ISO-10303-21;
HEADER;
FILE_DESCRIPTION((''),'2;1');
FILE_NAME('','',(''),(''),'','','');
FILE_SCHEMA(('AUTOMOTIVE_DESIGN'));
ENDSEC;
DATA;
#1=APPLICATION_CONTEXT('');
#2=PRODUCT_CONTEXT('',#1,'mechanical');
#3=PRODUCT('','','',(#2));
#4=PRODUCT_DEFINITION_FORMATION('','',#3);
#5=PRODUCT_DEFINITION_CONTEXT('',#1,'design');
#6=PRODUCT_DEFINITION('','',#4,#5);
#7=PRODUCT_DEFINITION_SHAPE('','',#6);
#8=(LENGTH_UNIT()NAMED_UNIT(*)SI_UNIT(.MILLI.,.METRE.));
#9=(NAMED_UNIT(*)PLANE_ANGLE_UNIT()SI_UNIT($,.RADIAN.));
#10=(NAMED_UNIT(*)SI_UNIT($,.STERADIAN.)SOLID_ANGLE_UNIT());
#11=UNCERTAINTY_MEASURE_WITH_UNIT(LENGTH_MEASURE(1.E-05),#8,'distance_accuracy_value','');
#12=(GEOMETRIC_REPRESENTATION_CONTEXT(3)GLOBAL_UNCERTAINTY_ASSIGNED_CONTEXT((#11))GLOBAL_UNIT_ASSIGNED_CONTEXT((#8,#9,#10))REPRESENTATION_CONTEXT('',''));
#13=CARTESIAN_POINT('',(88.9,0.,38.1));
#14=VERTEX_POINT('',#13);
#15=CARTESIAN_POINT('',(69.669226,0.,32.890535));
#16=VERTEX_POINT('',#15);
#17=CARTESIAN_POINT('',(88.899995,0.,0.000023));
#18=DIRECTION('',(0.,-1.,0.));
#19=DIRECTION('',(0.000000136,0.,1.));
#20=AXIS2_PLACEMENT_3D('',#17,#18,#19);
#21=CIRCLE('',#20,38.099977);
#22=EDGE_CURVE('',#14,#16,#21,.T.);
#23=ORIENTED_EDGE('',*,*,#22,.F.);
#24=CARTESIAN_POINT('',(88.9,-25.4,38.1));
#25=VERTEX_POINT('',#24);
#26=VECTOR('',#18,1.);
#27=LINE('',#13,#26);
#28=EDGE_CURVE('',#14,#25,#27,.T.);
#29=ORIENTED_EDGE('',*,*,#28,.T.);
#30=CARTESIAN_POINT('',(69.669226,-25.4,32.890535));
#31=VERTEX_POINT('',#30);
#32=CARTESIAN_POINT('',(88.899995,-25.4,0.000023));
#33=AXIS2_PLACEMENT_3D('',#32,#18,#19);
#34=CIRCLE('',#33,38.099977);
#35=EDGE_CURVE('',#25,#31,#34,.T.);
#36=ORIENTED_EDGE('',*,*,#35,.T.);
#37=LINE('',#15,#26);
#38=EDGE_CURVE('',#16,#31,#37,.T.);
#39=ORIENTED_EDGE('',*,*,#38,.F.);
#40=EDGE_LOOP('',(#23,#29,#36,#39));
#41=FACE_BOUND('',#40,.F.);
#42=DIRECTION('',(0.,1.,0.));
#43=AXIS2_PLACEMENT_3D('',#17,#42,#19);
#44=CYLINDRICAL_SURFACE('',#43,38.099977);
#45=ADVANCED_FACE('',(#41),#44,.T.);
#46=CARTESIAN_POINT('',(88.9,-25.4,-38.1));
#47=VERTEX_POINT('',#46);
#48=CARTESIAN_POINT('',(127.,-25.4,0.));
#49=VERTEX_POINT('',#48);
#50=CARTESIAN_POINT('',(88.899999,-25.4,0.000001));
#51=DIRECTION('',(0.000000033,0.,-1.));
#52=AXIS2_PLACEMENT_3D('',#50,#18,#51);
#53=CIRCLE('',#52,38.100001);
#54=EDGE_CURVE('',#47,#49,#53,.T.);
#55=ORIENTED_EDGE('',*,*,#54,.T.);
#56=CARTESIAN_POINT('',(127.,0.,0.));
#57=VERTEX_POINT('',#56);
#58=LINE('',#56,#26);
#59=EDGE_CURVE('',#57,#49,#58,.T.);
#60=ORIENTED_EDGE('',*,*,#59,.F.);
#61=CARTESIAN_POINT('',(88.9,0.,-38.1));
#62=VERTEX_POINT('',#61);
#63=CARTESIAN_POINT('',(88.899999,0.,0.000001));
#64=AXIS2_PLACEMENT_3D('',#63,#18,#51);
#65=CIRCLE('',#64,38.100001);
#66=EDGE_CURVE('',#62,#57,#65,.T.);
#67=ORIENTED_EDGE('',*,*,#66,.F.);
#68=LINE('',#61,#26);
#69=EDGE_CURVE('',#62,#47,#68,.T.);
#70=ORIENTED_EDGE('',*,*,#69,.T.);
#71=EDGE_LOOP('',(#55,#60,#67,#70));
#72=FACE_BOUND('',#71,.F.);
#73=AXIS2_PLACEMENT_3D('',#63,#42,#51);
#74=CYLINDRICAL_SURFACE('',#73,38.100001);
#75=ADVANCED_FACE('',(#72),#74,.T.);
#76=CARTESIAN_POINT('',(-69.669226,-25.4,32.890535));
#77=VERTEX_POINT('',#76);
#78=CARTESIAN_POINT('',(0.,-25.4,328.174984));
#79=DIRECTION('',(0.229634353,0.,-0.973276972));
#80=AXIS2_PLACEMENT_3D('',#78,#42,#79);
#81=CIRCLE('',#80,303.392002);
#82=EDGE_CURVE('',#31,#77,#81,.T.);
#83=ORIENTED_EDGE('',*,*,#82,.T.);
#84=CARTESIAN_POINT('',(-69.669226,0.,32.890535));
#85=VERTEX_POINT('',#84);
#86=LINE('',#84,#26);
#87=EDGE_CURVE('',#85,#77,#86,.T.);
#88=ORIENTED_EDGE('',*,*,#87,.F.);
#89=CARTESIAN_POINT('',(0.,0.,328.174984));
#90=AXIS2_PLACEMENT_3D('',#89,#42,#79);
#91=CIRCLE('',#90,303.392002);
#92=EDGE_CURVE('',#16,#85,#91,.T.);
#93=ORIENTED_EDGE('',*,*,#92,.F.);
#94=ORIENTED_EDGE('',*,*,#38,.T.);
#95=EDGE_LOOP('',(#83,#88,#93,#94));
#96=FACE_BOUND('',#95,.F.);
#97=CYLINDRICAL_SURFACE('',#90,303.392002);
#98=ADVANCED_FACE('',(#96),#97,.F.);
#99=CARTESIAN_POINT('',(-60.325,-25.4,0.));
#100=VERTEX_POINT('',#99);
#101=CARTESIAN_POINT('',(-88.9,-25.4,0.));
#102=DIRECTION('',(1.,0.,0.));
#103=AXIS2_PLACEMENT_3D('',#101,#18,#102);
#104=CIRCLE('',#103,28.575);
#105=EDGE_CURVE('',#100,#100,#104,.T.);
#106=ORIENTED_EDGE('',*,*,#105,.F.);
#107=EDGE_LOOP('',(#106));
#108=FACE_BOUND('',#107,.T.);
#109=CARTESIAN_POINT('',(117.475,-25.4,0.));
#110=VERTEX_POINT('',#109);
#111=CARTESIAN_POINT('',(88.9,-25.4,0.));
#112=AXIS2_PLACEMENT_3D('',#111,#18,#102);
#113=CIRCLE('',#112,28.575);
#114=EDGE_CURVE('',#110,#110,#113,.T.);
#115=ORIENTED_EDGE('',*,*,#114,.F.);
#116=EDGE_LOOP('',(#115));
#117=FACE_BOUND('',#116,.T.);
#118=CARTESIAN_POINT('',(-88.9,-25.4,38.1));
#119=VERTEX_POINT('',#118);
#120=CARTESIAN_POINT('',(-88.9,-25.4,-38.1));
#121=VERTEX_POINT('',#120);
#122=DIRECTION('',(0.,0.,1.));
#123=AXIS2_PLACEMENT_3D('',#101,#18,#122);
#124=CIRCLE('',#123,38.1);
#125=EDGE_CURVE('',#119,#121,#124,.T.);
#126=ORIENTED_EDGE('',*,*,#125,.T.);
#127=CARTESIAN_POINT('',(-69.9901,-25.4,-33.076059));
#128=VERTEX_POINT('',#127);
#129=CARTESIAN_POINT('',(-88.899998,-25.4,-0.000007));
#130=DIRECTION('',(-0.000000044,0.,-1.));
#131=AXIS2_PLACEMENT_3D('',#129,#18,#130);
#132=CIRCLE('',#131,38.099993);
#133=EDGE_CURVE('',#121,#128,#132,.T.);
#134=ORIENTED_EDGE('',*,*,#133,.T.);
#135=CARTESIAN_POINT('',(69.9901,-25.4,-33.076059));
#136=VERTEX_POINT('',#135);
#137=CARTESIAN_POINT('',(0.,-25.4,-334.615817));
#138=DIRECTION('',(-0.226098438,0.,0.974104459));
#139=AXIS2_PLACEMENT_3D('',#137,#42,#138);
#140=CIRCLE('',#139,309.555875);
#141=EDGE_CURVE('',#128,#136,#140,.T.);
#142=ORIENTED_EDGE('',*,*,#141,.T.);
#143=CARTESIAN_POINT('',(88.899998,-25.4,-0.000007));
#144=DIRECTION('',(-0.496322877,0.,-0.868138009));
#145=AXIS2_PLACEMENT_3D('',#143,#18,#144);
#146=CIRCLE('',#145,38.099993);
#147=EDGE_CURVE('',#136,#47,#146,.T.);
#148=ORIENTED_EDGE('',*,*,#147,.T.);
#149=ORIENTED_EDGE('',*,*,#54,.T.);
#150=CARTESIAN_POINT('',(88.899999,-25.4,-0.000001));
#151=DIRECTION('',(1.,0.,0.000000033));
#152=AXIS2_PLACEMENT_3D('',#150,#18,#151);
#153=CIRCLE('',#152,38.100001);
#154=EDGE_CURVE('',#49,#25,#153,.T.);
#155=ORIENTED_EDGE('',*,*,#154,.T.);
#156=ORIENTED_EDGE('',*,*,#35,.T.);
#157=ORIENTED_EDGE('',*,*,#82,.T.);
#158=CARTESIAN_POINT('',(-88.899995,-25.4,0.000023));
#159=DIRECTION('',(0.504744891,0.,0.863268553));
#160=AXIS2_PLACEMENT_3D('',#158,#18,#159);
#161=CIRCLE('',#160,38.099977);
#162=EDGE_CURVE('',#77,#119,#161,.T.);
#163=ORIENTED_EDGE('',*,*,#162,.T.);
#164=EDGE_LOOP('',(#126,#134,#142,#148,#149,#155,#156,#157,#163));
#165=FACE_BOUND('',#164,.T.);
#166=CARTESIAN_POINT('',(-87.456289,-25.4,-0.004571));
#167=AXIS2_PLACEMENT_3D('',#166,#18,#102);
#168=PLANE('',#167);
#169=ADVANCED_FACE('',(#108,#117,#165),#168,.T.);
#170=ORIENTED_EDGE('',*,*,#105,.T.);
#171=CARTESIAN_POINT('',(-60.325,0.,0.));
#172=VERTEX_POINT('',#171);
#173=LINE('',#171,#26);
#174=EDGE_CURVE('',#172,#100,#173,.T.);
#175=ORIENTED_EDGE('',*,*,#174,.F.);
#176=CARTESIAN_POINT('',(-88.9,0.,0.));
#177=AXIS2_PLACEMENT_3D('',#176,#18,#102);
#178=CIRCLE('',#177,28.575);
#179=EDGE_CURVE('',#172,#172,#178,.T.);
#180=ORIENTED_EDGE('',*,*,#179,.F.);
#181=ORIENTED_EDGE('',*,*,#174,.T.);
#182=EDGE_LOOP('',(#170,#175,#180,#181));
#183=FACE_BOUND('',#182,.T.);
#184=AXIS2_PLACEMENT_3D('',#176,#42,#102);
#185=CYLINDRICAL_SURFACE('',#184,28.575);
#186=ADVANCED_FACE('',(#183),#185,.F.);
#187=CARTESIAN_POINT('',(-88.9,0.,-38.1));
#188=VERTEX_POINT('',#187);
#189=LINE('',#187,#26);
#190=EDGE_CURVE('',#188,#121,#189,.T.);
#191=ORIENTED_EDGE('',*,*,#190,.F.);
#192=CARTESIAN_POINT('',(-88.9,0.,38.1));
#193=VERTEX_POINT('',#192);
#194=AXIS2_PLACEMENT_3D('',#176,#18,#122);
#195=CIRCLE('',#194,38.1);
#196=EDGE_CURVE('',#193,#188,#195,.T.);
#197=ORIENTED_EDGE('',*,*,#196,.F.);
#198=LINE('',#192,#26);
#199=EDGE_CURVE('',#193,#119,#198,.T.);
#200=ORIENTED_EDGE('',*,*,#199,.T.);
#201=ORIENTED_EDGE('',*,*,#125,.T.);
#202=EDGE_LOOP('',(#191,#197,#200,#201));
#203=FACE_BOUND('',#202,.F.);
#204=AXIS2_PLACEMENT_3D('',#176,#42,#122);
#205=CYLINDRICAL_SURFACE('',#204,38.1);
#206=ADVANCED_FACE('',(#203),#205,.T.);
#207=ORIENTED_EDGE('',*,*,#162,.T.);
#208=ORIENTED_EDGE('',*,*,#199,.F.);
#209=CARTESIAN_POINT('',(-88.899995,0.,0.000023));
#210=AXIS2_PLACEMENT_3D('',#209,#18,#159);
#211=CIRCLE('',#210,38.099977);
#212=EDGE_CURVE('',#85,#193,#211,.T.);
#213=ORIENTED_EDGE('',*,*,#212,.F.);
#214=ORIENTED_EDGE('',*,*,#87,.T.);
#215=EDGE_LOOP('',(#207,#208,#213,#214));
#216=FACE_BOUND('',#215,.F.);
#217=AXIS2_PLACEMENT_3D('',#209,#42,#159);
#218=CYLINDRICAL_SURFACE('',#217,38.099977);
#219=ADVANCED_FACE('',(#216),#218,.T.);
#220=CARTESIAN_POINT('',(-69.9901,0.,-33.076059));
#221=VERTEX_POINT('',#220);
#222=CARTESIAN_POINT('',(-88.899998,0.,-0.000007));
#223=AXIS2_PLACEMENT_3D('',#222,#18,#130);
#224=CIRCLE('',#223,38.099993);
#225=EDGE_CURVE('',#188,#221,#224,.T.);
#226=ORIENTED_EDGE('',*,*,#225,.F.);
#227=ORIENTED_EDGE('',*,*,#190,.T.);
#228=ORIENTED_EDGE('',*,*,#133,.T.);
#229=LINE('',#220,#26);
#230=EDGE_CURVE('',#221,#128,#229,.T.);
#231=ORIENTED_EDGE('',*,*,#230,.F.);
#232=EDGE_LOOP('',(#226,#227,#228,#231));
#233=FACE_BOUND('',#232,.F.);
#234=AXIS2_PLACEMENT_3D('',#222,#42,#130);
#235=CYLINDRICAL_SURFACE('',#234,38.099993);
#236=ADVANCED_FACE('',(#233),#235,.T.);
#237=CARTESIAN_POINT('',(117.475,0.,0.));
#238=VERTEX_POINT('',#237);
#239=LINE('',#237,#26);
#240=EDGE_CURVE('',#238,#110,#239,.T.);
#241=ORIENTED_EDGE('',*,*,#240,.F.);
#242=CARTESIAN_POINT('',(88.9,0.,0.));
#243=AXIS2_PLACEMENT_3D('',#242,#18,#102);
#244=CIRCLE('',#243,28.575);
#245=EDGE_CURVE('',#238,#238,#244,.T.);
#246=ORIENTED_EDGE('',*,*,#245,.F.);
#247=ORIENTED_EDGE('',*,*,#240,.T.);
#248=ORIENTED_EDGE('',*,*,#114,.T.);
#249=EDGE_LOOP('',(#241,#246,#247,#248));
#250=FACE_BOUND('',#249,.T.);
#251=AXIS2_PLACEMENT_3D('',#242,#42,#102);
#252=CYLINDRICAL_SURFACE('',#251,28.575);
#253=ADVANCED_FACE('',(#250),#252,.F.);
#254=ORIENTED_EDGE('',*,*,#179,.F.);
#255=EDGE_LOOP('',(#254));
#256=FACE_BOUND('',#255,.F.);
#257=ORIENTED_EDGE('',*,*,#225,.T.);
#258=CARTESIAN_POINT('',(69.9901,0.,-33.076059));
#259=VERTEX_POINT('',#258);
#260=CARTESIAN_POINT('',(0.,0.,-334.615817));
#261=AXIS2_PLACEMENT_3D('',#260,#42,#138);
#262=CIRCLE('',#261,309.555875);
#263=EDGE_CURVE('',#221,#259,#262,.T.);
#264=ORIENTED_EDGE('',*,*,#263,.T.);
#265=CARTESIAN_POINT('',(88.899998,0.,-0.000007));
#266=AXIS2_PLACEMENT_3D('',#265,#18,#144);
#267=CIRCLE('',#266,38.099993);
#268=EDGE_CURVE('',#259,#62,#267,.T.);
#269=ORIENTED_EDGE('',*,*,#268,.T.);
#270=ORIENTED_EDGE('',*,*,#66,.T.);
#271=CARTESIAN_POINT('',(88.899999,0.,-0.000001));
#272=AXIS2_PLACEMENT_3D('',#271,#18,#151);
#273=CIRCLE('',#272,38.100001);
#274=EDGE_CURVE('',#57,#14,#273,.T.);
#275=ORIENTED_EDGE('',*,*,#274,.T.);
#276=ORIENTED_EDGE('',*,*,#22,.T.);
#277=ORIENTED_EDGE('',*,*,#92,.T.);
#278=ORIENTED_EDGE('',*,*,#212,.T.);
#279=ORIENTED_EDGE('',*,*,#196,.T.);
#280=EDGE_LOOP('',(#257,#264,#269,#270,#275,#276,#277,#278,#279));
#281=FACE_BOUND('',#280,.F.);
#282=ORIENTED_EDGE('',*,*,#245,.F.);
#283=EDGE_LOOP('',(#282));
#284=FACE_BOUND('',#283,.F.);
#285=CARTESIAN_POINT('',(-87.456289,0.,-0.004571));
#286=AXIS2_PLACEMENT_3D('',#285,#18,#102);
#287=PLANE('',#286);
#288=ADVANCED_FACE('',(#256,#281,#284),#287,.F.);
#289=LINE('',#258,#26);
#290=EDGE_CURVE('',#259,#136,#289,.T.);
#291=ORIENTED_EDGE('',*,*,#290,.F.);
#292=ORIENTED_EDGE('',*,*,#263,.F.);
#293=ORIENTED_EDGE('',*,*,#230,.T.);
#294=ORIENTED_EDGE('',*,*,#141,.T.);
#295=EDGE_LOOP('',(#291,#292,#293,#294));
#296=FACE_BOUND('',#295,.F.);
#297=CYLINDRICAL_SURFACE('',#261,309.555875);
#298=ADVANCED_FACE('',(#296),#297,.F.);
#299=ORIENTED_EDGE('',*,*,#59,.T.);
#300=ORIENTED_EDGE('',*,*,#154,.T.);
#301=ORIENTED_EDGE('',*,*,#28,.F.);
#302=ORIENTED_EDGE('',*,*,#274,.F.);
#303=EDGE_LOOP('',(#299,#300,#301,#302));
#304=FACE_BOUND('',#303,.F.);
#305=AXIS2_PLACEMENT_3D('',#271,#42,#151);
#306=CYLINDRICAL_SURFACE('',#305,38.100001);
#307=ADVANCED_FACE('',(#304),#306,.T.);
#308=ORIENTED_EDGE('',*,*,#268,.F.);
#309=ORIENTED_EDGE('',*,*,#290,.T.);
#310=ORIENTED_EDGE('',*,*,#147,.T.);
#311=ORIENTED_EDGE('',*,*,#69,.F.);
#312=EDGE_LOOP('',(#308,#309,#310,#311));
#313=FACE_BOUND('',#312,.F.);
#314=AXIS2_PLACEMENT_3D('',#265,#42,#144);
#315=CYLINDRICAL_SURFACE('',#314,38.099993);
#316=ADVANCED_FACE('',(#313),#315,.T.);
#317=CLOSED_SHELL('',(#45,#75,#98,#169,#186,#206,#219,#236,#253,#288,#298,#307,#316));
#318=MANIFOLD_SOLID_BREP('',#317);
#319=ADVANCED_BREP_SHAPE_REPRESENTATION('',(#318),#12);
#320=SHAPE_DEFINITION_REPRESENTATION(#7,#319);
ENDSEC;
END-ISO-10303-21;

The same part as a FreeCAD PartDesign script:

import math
import FreeCAD as App
import Part
import Sketcher
Q = App.Units.Quantity

doc = App.newDocument("Part")
body = doc.addObject("PartDesign::Body", "Body")

sketch1 = body.newObject("Sketcher::SketchObject", "Sketch")
sketch1.AttachmentSupport = (doc.getObject("XZ_Plane"), [""])
sketch1.MapMode = "FlatFace"
sketch1.addGeometry(Part.ArcOfCircle(Part.Circle(App.Vector(-89, 0, 0), App.Vector(0, 0, 1), 38), math.radians(60), math.radians(90)), False)
sketch1.addGeometry(Part.ArcOfCircle(Part.Circle(App.Vector(-89, 0, 0), App.Vector(0, 0, 1), 38), math.radians(90), math.radians(270)), False)
sketch1.addGeometry(Part.ArcOfCircle(Part.Circle(App.Vector(-89, 0, 0), App.Vector(0, 0, 1), 38), math.radians(-90), math.radians(-60)), False)
sketch1.addGeometry(Part.ArcOfCircle(Part.Circle(App.Vector(0, -335, 0), App.Vector(0, 0, 1), 310), math.radians(77), math.radians(103)), False)
sketch1.addGeometry(Part.ArcOfCircle(Part.Circle(App.Vector(89, 0, 0), App.Vector(0, 0, 1), 38), math.radians(-120), math.radians(-90)), False)
sketch1.addGeometry(Part.ArcOfCircle(Part.Circle(App.Vector(89, 0, 0), App.Vector(0, 0, 1), 38), math.radians(-90), math.radians(0)), False)
sketch1.addGeometry(Part.ArcOfCircle(Part.Circle(App.Vector(89, 0, 0), App.Vector(0, 0, 1), 38), math.radians(0), math.radians(90)), False)
sketch1.addGeometry(Part.ArcOfCircle(Part.Circle(App.Vector(89, 0, 0), App.Vector(0, 0, 1), 38), math.radians(90), math.radians(120)), False)
sketch1.addGeometry(Part.ArcOfCircle(Part.Circle(App.Vector(0, 328, 0), App.Vector(0, 0, 1), 303), math.radians(-103), math.radians(-77)), False)
sketch1.addGeometry(Part.Circle(App.Vector(-89, 0, 0), App.Vector(0, 0, 1), 29), False)
sketch1.addGeometry(Part.Circle(App.Vector(89, 0, 0), App.Vector(0, 0, 1), 29), False)
sketch1.addConstraint(Sketcher.Constraint("Tangent", 0, 2, 1, 1))
sketch1.addConstraint(Sketcher.Constraint("Tangent", 1, 2, 2, 1))
sketch1.addConstraint(Sketcher.Constraint("Coincident", 2, 2, 3, 2))
sketch1.addConstraint(Sketcher.Constraint("Coincident", 3, 1, 4, 1))
sketch1.addConstraint(Sketcher.Constraint("Tangent", 4, 2, 5, 1))
sketch1.addConstraint(Sketcher.Constraint("Tangent", 5, 2, 6, 1))
sketch1.addConstraint(Sketcher.Constraint("Tangent", 6, 2, 7, 1))
sketch1.addConstraint(Sketcher.Constraint("Coincident", 7, 2, 8, 2))
sketch1.addConstraint(Sketcher.Constraint("Coincident", 8, 1, 0, 1))
sketch1.addConstraint(Sketcher.Constraint("Coincident", 6, 3, 4, 3))
sketch1.addConstraint(Sketcher.Constraint("Coincident", 9, 3, 1, 3))
sketch1.addConstraint(Sketcher.Constraint("Coincident", 10, 3, 4, 3))
sketch1.addConstraint(Sketcher.Constraint("Equal", 2, 4))
sketch1.addConstraint(Sketcher.Constraint("Equal", 1, 5))
sketch1.addConstraint(Sketcher.Constraint("Equal", 0, 7))
sketch1.addConstraint(Sketcher.Constraint("Equal", 9, 10))
sketch1.addConstraint(Sketcher.Constraint("Symmetric", 1, 3, 4, 3, -1, 1))
sketch1.addConstraint(Sketcher.Constraint("Symmetric", 2, 2, 3, 1, -2))
sketch1.addConstraint(Sketcher.Constraint("PointOnObject", 8, 3, -2))
sketch1.addConstraint(Sketcher.Constraint("PointOnObject", 5, 2, -1))
sketch1.addConstraint(Sketcher.Constraint("Vertical", 9, 3, 0, 2))
sketch1.addConstraint(Sketcher.Constraint("Vertical", 0, 2, 1, 2))
sketch1.addConstraint(Sketcher.Constraint("Vertical", 10, 3, 4, 2))
sketch1.addConstraint(Sketcher.Constraint("Vertical", 4, 2, 6, 2))
sketch1.addConstraint(Sketcher.Constraint("Radius", 1, Q("1.5 in")))
sketch1.addConstraint(Sketcher.Constraint("Diameter", 9, Q("2.25 in")))
sketch1.addConstraint(Sketcher.Constraint("DistanceX", -1, 1, 5, 2, Q("5 in")))
sketch1.addConstraint(Sketcher.Constraint("Radius", 8, 303.392002))
sketch1.addConstraint(Sketcher.Constraint("Radius", 0, 38.099977))
sketch1.addConstraint(Sketcher.Constraint("Radius", 3, 309.555875))
sketch1.addConstraint(Sketcher.Constraint("DistanceX", 2, 2, -1, 1, 69.9901))
sketch1.addConstraint(Sketcher.Constraint("DistanceY", 0, 3, 8, 3, 328.174961))
pad1 = body.newObject("PartDesign::Pad", "Pad")
pad1.Profile = sketch1
pad1.Length = Q("1 in")

doc.recompute()
